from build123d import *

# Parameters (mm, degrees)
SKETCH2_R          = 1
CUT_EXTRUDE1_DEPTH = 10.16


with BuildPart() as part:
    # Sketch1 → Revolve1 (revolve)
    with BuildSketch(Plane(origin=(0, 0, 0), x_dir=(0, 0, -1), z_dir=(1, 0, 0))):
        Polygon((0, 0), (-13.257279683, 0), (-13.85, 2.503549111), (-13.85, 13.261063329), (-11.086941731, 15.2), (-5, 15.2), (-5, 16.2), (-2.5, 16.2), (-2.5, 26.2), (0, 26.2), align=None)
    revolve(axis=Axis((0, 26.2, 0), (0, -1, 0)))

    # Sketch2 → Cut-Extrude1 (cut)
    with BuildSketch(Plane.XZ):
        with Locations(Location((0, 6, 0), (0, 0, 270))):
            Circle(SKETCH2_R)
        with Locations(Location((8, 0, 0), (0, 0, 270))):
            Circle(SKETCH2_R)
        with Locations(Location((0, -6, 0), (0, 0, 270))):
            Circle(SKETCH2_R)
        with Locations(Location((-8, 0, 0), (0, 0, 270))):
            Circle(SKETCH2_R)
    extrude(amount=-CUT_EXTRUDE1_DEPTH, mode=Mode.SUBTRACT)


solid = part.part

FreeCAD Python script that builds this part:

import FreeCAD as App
import Part
import Sketcher

V = App.Vector
Q = App.Units.Quantity


def add_polygon(sketch, points):
    """Adds a closed chain of lines whose ends are joined by coincident constraints."""
    first, n = sketch.GeometryCount, len(points)
    for a, b in zip(points, points[1:] + points[:1]):
        sketch.addGeometry(Part.LineSegment(App.Vector(*a, 0), App.Vector(*b, 0)), False)
    for i in range(n):
        sketch.addConstraint(Sketcher.Constraint("Coincident", first + i, 2, first + (i + 1) % n, 1))

doc = App.newDocument("Part")
body = doc.addObject("PartDesign::Body", "Body")

# Sketch on YZ plane
sketch1 = body.newObject("Sketcher::SketchObject", "Sketch")
sketch1.AttachmentSupport = (doc.getObject("YZ_Plane"), [""])
sketch1.MapMode = "FlatFace"
add_polygon(sketch1, [(0, 13.3), (0, 0), (26.2, 0), (26.2, 2.5), (16.2, 2.5), (16.2, 5), (15.2, 5), (15.2, 11.1), (13.3, 13.8), (2.5, 13.8)])  # lines 0-9
sketch1.addConstraint([
    Sketcher.Constraint("Vertical", 0),
    Sketcher.Constraint("Horizontal", 1),
    Sketcher.Constraint("Vertical", 2),
    Sketcher.Constraint("Horizontal", 3),
    Sketcher.Constraint("Vertical", 4),
    Sketcher.Constraint("Horizontal", 5),
    Sketcher.Constraint("Vertical", 6),
    Sketcher.Constraint("Horizontal", 8),
    Sketcher.Constraint("Coincident", 0, 2, -1, 1),
    Sketcher.Constraint("Equal", 2, 4),
    Sketcher.Constraint("DistanceX", 3, 2, 3, 1, Q("10 mm")),
    Sketcher.Constraint("DistanceX", 5, 2, 5, 1, Q("1 mm")),
    Sketcher.Constraint("DistanceX", 1, 1, 1, 2, Q("26.2 mm")),
    Sketcher.Constraint("DistanceY", 2, 1, 2, 2, Q("2.5 mm")),
    Sketcher.Constraint("DistanceY", -1, 1, 7, 2, Q("13.85 mm")),
    Sketcher.Constraint("DistanceY", 0, 2, 0, 1, Q("13.25728 mm")),
    Sketcher.Constraint("DistanceY", 6, 1, 6, 2, Q("6.086942 mm")),
    Sketcher.Constraint("DistanceX", 8, 2, 8, 1, Q("10.757514 mm")),
    Sketcher.Constraint("DistanceX", -1, 1, 8, 2, Q("2.503549 mm")),
])
revolution = body.newObject("PartDesign::Revolution", "Revolution")
revolution.Profile = sketch1
revolution.ReferenceAxis = (sketch1, ["H_Axis"])
revolution.Angle = 360

# Sketch on XZ plane
sketch2 = body.newObject("Sketcher::SketchObject", "Sketch001")
sketch2.AttachmentSupport = (doc.getObject("XZ_Plane"), [""])
sketch2.MapMode = "FlatFace"
sketch2.addGeometry([
    Part.Circle(V(0, 6, 0), V(0, 0, 1), 1),
    Part.Circle(V(8, 0, 0), V(0, 0, 1), 1),
    Part.Circle(V(0, -6, 0), V(0, 0, 1), 1),
    Part.Circle(V(-8, 0, 0), V(0, 0, 1), 1),
], False)
sketch2.addConstraint([
    Sketcher.Constraint("Equal", 0, 1),
    Sketcher.Constraint("Equal", 1, 2),
    Sketcher.Constraint("Equal", 2, 3),
    Sketcher.Constraint("Symmetric", 0, 3, 2, 3, -1, 1),
    Sketcher.Constraint("Symmetric", 1, 3, 3, 3, -1, 1),
    Sketcher.Constraint("PointOnObject", 0, 3, -2),
    Sketcher.Constraint("PointOnObject", 1, 3, -1),
    Sketcher.Constraint("Diameter", 0, Q("2 mm")),
    Sketcher.Constraint("DistanceY", -1, 1, 0, 3, Q("6 mm")),
    Sketcher.Constraint("DistanceX", -1, 1, 1, 3, Q("8 mm")),
])
pocket1 = body.newObject("PartDesign::Pocket", "Pocket")
pocket1.Profile = sketch2
pocket1.Length = 10.16

doc.recompute()
